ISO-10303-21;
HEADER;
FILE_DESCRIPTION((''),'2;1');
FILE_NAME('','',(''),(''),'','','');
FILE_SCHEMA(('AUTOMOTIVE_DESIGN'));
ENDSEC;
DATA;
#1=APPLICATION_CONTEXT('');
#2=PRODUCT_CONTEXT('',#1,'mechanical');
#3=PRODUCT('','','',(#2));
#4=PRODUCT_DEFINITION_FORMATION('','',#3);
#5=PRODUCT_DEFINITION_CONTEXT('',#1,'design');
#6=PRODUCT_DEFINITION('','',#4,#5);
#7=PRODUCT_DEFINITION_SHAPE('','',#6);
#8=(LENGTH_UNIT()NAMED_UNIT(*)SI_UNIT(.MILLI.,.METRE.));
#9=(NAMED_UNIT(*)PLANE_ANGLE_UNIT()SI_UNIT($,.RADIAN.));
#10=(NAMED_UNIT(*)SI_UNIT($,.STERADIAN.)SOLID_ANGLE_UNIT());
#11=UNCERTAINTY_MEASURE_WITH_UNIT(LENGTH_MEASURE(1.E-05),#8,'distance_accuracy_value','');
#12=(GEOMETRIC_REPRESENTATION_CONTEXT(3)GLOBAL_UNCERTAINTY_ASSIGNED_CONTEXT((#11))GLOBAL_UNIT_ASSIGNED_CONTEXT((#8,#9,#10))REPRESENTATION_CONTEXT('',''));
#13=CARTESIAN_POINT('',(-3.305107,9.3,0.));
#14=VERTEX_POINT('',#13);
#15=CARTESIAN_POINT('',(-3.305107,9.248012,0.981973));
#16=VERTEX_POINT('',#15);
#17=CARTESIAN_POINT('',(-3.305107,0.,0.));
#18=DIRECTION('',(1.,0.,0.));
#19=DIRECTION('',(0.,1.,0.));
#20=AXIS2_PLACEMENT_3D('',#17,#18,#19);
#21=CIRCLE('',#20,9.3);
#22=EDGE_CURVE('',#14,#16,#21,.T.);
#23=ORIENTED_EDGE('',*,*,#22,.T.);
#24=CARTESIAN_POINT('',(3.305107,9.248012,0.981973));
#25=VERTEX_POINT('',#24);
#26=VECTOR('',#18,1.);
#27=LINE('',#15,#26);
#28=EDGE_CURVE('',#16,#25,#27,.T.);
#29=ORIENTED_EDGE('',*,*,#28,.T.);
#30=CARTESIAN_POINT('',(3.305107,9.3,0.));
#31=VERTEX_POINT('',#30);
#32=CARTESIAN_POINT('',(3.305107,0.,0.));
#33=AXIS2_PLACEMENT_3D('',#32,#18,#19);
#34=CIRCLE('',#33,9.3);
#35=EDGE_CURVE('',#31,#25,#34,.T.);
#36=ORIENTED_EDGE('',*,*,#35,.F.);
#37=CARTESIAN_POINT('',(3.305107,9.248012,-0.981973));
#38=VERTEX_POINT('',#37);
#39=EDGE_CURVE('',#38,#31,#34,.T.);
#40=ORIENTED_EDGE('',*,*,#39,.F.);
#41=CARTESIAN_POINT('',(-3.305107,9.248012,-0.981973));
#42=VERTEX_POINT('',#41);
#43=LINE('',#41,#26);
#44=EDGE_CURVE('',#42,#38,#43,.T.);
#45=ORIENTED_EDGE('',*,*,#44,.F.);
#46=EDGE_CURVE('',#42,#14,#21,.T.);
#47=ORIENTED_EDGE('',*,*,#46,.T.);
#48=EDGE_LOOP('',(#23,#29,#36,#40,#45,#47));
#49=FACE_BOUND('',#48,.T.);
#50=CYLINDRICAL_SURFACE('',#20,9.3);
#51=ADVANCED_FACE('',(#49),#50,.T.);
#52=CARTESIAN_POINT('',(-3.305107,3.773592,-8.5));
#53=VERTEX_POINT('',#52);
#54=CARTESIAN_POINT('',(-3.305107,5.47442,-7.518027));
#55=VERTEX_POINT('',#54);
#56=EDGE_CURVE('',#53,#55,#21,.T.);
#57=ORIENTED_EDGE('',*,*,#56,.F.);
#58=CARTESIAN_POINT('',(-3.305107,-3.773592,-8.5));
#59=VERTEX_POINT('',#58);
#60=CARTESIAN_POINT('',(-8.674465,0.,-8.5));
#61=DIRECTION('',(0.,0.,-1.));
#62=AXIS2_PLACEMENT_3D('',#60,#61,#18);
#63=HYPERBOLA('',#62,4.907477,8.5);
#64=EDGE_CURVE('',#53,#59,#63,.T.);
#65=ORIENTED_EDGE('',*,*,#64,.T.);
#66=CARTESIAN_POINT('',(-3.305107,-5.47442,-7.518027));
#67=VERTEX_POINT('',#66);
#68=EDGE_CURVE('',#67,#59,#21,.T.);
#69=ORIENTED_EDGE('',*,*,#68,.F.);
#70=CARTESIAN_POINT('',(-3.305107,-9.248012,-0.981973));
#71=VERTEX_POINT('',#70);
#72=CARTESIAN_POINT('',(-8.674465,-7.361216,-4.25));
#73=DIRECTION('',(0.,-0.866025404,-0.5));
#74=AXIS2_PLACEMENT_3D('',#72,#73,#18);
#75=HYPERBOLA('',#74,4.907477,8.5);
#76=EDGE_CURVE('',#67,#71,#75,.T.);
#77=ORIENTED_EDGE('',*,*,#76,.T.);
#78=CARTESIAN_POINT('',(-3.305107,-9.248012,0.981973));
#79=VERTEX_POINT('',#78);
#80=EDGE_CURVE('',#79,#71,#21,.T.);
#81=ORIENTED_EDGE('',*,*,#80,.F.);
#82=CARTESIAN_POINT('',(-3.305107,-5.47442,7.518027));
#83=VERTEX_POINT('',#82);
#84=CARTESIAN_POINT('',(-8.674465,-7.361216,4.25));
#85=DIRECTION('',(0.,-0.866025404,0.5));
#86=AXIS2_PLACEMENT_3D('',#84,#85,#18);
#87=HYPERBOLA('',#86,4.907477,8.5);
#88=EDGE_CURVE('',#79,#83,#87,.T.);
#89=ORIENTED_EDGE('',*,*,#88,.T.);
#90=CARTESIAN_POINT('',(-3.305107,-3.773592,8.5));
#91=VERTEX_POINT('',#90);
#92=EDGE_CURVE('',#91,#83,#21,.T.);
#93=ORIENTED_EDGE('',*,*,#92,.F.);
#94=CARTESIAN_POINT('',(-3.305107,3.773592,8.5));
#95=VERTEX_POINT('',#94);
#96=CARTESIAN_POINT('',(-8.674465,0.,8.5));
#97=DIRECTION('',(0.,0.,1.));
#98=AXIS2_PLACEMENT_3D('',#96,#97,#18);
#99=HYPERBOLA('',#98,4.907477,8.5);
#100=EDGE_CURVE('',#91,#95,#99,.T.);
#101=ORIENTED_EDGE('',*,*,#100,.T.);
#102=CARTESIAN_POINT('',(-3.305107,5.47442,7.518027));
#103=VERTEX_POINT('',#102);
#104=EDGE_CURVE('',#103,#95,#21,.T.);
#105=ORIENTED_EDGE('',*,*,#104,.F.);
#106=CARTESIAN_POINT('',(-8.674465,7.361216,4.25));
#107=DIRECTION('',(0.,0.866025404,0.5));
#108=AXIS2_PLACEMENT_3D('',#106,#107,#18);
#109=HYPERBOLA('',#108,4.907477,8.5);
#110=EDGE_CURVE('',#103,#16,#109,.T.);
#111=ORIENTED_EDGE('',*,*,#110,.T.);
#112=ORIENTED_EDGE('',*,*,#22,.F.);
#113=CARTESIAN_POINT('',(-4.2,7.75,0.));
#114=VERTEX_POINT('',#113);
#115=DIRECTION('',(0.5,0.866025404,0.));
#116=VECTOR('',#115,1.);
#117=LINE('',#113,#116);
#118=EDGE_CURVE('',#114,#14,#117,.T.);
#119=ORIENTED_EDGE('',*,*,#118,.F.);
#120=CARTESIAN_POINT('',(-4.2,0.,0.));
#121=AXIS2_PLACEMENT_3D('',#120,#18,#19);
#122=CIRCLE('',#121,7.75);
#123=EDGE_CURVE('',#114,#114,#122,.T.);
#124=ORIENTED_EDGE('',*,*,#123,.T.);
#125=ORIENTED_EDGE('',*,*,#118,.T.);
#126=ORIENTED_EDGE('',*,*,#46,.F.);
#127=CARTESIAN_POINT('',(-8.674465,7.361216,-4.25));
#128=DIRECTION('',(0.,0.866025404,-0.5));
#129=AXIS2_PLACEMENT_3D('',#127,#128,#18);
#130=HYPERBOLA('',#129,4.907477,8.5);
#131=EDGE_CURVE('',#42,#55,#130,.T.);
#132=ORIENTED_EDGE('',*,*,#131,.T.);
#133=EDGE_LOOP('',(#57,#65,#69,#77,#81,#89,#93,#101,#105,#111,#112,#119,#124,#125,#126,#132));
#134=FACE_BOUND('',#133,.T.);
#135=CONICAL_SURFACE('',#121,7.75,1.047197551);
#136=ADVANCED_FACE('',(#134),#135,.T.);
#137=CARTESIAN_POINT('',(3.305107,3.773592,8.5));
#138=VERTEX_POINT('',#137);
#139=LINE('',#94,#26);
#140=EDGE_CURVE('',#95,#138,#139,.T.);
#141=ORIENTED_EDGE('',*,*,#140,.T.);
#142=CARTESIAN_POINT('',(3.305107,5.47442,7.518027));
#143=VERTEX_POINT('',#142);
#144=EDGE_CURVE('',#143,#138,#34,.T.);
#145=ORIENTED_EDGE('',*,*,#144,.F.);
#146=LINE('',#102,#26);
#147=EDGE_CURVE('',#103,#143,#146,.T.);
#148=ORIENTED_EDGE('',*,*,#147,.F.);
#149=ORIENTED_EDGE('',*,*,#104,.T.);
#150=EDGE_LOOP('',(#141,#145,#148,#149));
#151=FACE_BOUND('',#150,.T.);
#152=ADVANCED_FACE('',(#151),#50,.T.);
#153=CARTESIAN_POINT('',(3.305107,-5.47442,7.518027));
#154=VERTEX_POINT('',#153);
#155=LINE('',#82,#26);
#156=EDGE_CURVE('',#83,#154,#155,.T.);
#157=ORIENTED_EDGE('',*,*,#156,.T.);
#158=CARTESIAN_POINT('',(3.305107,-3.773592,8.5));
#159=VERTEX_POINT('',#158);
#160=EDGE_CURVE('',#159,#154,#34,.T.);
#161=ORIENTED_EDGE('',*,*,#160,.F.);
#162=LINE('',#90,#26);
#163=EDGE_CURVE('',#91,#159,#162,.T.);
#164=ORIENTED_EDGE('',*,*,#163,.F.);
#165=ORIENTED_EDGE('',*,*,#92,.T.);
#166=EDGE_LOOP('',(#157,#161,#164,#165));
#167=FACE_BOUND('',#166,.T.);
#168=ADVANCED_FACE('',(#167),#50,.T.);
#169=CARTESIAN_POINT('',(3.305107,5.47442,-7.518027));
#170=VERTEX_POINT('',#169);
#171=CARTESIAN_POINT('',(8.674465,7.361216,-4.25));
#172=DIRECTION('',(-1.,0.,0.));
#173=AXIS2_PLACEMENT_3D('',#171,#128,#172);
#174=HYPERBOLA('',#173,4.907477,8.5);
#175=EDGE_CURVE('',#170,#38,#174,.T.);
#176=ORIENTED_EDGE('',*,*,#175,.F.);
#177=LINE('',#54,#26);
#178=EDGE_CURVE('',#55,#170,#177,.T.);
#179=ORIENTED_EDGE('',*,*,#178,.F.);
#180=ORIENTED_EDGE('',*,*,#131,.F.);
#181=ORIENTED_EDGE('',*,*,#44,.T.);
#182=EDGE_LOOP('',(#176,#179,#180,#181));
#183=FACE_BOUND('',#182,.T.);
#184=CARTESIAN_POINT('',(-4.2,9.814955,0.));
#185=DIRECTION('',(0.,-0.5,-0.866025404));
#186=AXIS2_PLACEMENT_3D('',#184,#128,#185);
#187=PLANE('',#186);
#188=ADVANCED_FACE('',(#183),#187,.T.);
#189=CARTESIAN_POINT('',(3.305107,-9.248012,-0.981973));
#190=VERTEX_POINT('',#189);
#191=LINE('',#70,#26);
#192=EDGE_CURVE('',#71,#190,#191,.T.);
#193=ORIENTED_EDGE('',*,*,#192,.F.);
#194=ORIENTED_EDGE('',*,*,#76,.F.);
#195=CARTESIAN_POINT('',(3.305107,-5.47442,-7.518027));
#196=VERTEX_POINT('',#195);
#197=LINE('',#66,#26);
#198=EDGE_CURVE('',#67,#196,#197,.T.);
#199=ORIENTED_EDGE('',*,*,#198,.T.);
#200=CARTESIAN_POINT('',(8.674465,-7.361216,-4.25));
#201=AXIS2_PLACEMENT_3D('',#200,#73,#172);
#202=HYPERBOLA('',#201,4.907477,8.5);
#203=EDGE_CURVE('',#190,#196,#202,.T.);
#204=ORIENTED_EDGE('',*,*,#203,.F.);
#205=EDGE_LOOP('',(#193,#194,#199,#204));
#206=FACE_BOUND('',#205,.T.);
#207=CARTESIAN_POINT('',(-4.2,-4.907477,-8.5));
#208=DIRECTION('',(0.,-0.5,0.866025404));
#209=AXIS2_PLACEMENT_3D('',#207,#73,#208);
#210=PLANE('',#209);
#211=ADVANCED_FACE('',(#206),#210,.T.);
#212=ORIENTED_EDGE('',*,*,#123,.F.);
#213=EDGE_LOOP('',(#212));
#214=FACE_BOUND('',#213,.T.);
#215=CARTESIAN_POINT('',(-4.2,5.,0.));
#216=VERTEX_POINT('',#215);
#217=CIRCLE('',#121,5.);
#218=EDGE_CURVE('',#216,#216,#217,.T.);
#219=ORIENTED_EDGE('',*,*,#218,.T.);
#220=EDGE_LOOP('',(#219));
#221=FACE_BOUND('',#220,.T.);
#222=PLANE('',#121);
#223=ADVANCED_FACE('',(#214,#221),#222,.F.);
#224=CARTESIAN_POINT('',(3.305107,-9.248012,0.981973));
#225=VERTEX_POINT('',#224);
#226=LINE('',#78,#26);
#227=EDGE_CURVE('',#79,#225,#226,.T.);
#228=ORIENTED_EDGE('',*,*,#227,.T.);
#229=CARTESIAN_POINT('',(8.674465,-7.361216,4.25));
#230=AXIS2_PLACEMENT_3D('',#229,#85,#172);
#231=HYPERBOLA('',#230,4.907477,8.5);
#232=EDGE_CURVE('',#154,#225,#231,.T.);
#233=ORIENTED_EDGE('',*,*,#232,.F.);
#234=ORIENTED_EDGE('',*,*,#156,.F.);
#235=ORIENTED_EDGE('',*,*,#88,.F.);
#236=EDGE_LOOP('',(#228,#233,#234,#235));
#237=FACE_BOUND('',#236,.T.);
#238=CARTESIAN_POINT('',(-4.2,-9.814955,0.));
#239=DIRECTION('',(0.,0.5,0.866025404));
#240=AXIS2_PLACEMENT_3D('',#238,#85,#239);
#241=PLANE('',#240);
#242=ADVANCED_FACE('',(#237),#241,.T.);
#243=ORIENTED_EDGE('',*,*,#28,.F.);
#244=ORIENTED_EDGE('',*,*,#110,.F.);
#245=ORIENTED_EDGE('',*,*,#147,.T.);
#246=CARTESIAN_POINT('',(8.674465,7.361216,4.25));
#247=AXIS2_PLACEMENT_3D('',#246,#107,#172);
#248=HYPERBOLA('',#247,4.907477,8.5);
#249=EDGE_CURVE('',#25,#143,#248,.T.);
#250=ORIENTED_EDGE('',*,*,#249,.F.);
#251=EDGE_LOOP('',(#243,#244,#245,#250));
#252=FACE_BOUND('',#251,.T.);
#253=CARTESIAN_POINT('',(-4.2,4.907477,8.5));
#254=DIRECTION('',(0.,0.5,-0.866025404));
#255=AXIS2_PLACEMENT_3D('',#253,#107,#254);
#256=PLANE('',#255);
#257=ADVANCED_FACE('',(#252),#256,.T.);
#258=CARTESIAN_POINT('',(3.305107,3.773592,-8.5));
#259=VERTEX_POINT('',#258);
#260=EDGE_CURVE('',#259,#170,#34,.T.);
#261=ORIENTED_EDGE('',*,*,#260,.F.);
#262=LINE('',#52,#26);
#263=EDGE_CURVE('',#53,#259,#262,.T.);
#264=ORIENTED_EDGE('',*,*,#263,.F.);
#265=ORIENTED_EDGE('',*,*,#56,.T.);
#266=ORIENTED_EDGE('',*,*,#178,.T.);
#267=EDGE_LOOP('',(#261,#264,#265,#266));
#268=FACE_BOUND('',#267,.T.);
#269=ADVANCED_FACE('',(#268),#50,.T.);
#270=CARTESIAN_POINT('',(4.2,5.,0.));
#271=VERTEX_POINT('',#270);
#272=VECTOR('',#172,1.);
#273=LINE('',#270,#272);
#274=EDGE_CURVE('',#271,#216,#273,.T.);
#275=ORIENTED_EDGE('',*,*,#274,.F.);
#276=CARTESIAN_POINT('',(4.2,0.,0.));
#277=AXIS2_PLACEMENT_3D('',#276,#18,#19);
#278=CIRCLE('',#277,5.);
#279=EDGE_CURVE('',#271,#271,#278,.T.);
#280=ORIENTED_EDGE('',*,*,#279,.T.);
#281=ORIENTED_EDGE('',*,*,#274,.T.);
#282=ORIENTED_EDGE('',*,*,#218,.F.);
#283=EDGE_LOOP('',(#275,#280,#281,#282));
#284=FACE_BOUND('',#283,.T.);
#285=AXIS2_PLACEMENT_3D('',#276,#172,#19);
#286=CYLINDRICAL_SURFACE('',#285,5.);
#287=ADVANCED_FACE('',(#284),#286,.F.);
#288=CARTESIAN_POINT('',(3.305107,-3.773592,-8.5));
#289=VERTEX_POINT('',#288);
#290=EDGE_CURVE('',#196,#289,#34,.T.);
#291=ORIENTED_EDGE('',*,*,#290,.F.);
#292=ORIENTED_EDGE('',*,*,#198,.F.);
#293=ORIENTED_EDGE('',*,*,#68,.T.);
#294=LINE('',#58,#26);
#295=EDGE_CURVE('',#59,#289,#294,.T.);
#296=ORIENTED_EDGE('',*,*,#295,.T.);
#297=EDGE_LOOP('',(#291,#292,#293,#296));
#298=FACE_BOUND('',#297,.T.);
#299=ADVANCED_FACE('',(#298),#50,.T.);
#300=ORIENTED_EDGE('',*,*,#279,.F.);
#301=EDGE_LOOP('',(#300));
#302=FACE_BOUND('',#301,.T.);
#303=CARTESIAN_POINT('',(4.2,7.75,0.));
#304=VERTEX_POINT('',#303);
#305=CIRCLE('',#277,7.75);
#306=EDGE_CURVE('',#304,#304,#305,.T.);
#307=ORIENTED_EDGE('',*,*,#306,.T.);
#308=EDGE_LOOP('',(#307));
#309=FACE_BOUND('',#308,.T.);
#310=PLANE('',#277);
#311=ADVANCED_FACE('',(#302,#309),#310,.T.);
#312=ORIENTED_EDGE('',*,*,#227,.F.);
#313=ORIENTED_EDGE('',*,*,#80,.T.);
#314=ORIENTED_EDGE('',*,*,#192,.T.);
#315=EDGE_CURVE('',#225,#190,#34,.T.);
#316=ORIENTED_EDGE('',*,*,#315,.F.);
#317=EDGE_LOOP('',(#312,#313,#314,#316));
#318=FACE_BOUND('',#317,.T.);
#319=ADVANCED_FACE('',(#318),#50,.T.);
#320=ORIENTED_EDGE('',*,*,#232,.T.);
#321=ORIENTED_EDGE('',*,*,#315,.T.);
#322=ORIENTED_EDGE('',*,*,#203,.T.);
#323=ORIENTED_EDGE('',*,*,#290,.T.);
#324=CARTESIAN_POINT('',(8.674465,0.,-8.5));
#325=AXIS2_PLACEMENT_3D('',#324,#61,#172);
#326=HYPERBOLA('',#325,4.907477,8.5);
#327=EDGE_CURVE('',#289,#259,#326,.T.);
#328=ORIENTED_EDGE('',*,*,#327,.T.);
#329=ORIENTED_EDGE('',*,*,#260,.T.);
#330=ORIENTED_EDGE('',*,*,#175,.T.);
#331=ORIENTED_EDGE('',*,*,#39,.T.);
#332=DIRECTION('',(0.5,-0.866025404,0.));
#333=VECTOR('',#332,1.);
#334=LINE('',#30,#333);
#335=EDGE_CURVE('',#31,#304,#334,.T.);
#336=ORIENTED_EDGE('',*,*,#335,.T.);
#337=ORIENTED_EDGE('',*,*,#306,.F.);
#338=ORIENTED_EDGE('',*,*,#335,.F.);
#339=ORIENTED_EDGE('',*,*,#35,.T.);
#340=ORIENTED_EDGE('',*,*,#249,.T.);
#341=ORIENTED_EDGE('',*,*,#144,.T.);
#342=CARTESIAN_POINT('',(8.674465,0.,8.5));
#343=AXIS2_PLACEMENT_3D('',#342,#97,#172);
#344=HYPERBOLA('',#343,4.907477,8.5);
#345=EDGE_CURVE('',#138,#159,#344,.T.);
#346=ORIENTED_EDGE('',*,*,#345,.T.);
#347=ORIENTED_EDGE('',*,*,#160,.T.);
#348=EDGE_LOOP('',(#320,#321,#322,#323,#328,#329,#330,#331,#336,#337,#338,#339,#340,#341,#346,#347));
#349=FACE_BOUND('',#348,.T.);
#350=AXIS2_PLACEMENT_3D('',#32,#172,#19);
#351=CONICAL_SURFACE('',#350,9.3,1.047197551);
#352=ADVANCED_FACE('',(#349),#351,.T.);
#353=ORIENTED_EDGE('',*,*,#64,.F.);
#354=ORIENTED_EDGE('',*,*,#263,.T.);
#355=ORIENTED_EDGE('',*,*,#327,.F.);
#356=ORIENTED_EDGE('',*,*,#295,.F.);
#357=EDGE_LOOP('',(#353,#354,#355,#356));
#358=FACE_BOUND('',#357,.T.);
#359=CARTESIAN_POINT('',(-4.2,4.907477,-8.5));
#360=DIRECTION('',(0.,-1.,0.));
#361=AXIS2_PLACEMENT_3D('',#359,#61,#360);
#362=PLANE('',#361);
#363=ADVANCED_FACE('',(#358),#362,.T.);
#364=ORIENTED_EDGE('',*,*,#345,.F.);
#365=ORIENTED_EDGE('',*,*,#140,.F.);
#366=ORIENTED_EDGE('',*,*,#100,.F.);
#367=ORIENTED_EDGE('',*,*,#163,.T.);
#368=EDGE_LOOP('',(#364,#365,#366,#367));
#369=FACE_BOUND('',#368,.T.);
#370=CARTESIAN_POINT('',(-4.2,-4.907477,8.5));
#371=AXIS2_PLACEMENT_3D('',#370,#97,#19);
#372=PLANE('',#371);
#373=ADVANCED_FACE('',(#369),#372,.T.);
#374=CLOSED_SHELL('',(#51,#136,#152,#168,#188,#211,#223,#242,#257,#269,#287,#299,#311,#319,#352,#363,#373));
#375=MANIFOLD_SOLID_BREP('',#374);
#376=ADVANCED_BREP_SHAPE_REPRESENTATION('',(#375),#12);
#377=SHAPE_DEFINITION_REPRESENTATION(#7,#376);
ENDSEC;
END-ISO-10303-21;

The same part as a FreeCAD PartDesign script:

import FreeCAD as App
import Part
import Sketcher
Q = App.Units.Quantity

doc = App.newDocument("Part")
body = doc.addObject("PartDesign::Body", "Body")

sketch1 = body.newObject("Sketcher::SketchObject", "Sketch")
sketch1.AttachmentSupport = (doc.getObject("XY_Plane"), [""])
sketch1.MapMode = "FlatFace"
sketch1.addGeometry([
    Part.LineSegment(App.Vector(-4.2, 5, 0), App.Vector(4.2, 5, 0)),
    Part.LineSegment(App.Vector(4.2, 5, 0), App.Vector(4.2, 7.75, 0)),
    Part.LineSegment(App.Vector(4.2, 7.75, 0), App.Vector(3.305107, 9.3, 0)),
    Part.LineSegment(App.Vector(3.305107, 9.3, 0), App.Vector(-3.305107, 9.3, 0)),
    Part.LineSegment(App.Vector(-3.305107, 9.3, 0), App.Vector(-4.2, 7.75, 0)),
    Part.LineSegment(App.Vector(-4.2, 7.75, 0), App.Vector(-4.2, 5, 0)),
], False)
sketch1.addConstraint([
    Sketcher.Constraint("Coincident", 0, 2, 1, 1),
    Sketcher.Constraint("Coincident", 1, 2, 2, 1),
    Sketcher.Constraint("Coincident", 2, 2, 3, 1),
    Sketcher.Constraint("Coincident", 3, 2, 4, 1),
    Sketcher.Constraint("Coincident", 4, 2, 5, 1),
    Sketcher.Constraint("Coincident", 5, 2, 0, 1),
    Sketcher.Constraint("Horizontal", 0),
    Sketcher.Constraint("Vertical", 1),
    Sketcher.Constraint("Horizontal", 3),
    Sketcher.Constraint("Vertical", 5),
    Sketcher.Constraint("Symmetric", 1, 2, 4, 2, -2),
    Sketcher.Constraint("Equal", 2, 4),
    Sketcher.Constraint("Angle", 2, Q("120 deg")),
    Sketcher.Constraint("DistanceX", 0, 1, 0, 2, Q("8.4 mm")),
    Sketcher.Constraint("DistanceY", -1, 1, 0, 2, Q("5 mm")),
    Sketcher.Constraint("DistanceY", 1, 1, 1, 2, Q("2.75 mm")),
    Sketcher.Constraint("DistanceY", -1, 1, 2, 2, Q("9.3 mm")),
])
revolution = body.newObject("PartDesign::Revolution", "Revolution")
revolution.Profile = sketch1
revolution.ReferenceAxis = (sketch1, ["H_Axis"])
revolution.Angle = 360

sketch2 = body.newObject("Sketcher::SketchObject", "Sketch001")
sketch2.AttachmentSupport = (doc.getObject("YZ_Plane"), [""])
sketch2.MapMode = "FlatFace"
sketch2.AttachmentOffset = App.Placement(App.Vector(0, 0, -4.2), App.Rotation())
sketch2.addGeometry([
    Part.LineSegment(App.Vector(13.061, -13.061, 0), App.Vector(-13.061, -13.061, 0)),
    Part.LineSegment(App.Vector(-13.061, -13.061, 0), App.Vector(-13.061, 13.061, 0)),
    Part.LineSegment(App.Vector(-13.061, 13.061, 0), App.Vector(13.061, 13.061, 0)),
    Part.LineSegment(App.Vector(13.061, 13.061, 0), App.Vector(13.061, -13.061, 0)),
    Part.LineSegment(App.Vector(-4.907477, 8.5, 0), App.Vector(-9.814955, 0, 0)),
    Part.LineSegment(App.Vector(-9.814955, 0, 0), App.Vector(-4.907477, -8.5, 0)),
    Part.LineSegment(App.Vector(-4.907477, -8.5, 0), App.Vector(4.907477, -8.5, 0)),
    Part.LineSegment(App.Vector(4.907477, -8.5, 0), App.Vector(9.814955, 0, 0)),
    Part.LineSegment(App.Vector(9.814955, 0, 0), App.Vector(4.907477, 8.5, 0)),
    Part.LineSegment(App.Vector(4.907477, 8.5, 0), App.Vector(-4.907477, 8.5, 0)),
], False)
sketch2.addConstraint([
    Sketcher.Constraint("Coincident", 0, 2, 1, 1),
    Sketcher.Constraint("Coincident", 1, 2, 2, 1),
    Sketcher.Constraint("Coincident", 2, 2, 3, 1),
    Sketcher.Constraint("Coincident", 3, 2, 0, 1),
    Sketcher.Constraint("Coincident", 4, 2, 5, 1),
    Sketcher.Constraint("Coincident", 5, 2, 6, 1),
    Sketcher.Constraint("Coincident", 6, 2, 7, 1),
    Sketcher.Constraint("Coincident", 7, 2, 8, 1),
    Sketcher.Constraint("Coincident", 8, 2, 9, 1),
    Sketcher.Constraint("Coincident", 9, 2, 4, 1),
    Sketcher.Constraint("Horizontal", 0),
    Sketcher.Constraint("Vertical", 1),
    Sketcher.Constraint("Horizontal", 2),
    Sketcher.Constraint("Vertical", 3),
    Sketcher.Constraint("Horizontal", 6),
    Sketcher.Constraint("Horizontal", 9),
    Sketcher.Constraint("Symmetric", 0, 2, 2, 2, -1, 1),
    Sketcher.Constraint("Symmetric", 4, 2, 7, 2, -1, 1),
    Sketcher.Constraint("Symmetric", 5, 2, 8, 2, -1, 1),
    Sketcher.Constraint("PointOnObject", 4, 2, -1),
    Sketcher.Constraint("Parallel", 4, 7),
    Sketcher.Constraint("Vertical", 6, 2, 8, 2),
    Sketcher.Constraint("Equal", 2, 1),
    Sketcher.Constraint("Angle", 4, Q("-120 deg")),
    Sketcher.Constraint("DistanceY", 6, 2, 8, 2, Q("17 mm")),
    Sketcher.Constraint("DistanceX", 0, 2, 0, 1, Q("26.122 mm")),
    Sketcher.Constraint("DistanceX", 6, 1, 6, 2, Q("9.814955 mm")),
])
pocket1 = body.newObject("PartDesign::Pocket", "Pocket")
pocket1.Profile = sketch2
pocket1.Type = "ThroughAll"
pocket1.Reversed = True

doc.recompute()
